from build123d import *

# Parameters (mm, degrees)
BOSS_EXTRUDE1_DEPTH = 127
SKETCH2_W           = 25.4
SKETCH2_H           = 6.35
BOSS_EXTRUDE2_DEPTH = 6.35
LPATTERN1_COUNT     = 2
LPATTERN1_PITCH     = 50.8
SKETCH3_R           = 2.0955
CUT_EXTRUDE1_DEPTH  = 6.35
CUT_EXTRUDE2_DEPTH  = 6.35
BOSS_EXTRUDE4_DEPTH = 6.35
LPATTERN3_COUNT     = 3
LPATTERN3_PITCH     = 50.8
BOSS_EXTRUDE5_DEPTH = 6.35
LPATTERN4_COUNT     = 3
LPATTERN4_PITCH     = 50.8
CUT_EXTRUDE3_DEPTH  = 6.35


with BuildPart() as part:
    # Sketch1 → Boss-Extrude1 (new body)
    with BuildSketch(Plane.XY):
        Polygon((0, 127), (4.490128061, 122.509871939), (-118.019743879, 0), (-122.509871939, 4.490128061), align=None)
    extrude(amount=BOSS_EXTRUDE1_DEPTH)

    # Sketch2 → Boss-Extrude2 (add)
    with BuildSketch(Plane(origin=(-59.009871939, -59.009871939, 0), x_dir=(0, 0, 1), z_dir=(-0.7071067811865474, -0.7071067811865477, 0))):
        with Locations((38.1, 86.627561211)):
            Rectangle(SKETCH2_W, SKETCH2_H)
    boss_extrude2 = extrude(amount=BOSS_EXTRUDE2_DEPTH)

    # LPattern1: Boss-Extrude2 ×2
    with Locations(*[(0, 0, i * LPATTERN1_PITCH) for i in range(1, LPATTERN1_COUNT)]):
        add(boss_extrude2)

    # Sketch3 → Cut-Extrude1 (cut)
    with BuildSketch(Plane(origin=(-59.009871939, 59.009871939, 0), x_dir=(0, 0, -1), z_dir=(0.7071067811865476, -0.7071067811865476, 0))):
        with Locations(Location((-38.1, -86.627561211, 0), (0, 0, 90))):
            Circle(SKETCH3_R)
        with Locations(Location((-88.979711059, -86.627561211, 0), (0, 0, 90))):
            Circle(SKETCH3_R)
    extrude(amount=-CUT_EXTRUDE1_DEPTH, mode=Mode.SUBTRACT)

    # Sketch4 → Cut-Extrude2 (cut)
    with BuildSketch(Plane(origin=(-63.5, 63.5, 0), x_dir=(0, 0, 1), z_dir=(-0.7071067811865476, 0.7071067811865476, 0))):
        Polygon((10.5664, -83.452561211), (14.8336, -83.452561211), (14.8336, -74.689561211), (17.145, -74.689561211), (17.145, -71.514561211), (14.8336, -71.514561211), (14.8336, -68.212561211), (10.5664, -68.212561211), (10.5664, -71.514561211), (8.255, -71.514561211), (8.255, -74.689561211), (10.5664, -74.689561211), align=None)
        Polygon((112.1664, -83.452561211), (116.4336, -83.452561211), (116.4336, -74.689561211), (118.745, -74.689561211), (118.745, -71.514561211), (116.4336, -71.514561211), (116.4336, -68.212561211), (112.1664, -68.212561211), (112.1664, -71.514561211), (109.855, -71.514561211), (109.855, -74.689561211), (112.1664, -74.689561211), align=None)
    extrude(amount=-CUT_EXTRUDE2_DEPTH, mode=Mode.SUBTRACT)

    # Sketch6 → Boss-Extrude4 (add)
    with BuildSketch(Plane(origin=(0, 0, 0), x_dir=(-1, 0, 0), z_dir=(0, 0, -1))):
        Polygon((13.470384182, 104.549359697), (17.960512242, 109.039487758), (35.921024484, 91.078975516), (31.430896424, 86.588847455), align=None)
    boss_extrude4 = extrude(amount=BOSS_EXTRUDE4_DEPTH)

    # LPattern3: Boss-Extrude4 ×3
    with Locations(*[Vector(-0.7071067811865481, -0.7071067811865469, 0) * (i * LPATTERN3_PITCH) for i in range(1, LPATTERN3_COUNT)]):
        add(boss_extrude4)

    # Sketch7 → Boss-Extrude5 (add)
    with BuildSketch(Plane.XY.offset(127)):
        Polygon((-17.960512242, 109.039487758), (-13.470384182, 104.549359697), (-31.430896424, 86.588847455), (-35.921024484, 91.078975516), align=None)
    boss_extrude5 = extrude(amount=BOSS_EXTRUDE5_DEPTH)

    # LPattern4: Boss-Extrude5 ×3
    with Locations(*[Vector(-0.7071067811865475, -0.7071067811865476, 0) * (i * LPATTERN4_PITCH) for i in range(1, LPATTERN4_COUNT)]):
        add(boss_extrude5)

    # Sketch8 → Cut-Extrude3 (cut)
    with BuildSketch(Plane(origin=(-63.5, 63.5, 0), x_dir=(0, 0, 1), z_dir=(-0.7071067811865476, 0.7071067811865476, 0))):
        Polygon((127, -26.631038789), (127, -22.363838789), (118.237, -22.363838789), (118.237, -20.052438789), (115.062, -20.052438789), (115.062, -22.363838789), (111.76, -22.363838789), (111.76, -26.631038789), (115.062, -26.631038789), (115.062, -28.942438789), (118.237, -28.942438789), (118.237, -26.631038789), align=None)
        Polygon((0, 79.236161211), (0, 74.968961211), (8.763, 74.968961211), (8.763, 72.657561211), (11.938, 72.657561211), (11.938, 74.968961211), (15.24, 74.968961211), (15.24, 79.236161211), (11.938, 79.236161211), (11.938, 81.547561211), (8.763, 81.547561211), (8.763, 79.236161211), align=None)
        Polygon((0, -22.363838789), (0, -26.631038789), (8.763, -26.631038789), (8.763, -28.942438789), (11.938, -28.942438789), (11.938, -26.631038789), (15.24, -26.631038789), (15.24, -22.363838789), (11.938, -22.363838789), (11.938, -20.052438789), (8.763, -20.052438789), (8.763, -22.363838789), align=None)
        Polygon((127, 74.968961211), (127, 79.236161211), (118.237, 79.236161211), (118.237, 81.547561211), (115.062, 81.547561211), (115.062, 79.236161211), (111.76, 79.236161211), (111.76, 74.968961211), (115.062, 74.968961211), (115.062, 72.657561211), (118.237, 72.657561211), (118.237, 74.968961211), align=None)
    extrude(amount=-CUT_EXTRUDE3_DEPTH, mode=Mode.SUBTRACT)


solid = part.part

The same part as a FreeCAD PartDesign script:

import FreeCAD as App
import Part
import Sketcher
from FreeCAD import Vector
Q = App.Units.Quantity


def add_polygon(sketch, points):
    """Adds a closed chain of lines whose ends are joined by coincident constraints."""
    first, n = sketch.GeometryCount, len(points)
    for a, b in zip(points, points[1:] + points[:1]):
        sketch.addGeometry(Part.LineSegment(App.Vector(*a, 0), App.Vector(*b, 0)), False)
    for i in range(n):
        sketch.addConstraint(Sketcher.Constraint("Coincident", first + i, 2, first + (i + 1) % n, 1))

doc = App.newDocument("Part")
body = doc.addObject("PartDesign::Body", "Body")

sketch1 = body.newObject("Sketcher::SketchObject", "Sketch")
sketch1.AttachmentSupport = (doc.getObject("XY_Plane"), [""])
sketch1.MapMode = "FlatFace"
add_polygon(sketch1, [(4.490128, 122.509872), (0, 127), (-122.509872, 4.490128), (-118.019744, 0)])
sketch1.addConstraint([
    Sketcher.Constraint("PointOnObject", 0, 2, -2),
    Sketcher.Constraint("PointOnObject", 2, 2, -1),
    Sketcher.Constraint("Perpendicular", 0, 1),
    Sketcher.Constraint("Perpendicular", 1, 2),
    Sketcher.Constraint("Perpendicular", 2, 3),
    Sketcher.Constraint("DistanceY", -1, 1, 0, 2, Q("5 in")),
    Sketcher.Constraint("Angle", 0, Q("135 deg")),
    Sketcher.Constraint("Distance", 0, Q("0.25 in")),
])
pad1 = body.newObject("PartDesign::Pad", "Pad")
pad1.Profile = sketch1
pad1.Length = Q("5 in")

sketch2 = body.newObject("Sketcher::SketchObject", "Sketch001")
sketch2.Placement = App.Placement(Vector(-59.009872, -59.009872, 0), App.Rotation(Vector(0, 0, 1), Vector(-0.707106781, 0.707106781, 0), Vector(-0.707106781, -0.707106781, 0), "ZXY"))
add_polygon(sketch2, [(25.4, 89.802561), (25.4, 83.452561), (50.8, 83.452561), (50.8, 89.802561)])
sketch2.addConstraint([
    Sketcher.Constraint("Vertical", 0),
    Sketcher.Constraint("Horizontal", 1),
    Sketcher.Constraint("Vertical", 2),
    Sketcher.Constraint("Horizontal", 3),
    Sketcher.Constraint("DistanceX", 1, 1, 1, 2, Q("1 in")),
    Sketcher.Constraint("DistanceX", -1, 1, 0, 2, Q("1 in")),
    Sketcher.Constraint("DistanceY", 0, 2, 0, 1, Q("0.25 in")),
    Sketcher.Constraint("DistanceY", -1, 1, 0, 2, Q("83.452561 mm")),
])
pad2 = body.newObject("PartDesign::Pad", "Pad001")
pad2.Profile = sketch2
pad2.Length = Q("0.25 in")
doc.recompute()

linearpattern = body.newObject("PartDesign::LinearPattern", "LinearPattern")
linearpattern.Originals = [pad2]
linearpattern.Direction = (doc.getObject("Z_Axis"), [""])
linearpattern.Mode = "offset"
linearpattern.Offset = Q("2 in")
linearpattern.Occurrences = 2
body.Tip = linearpattern

sketch3 = body.newObject("Sketcher::SketchObject", "Sketch002")
sketch3.Placement = App.Placement(Vector(-59.009872, 59.009872, 0), App.Rotation(Vector(0, 0, -1), Vector(0.707106781, 0.707106781, 0), Vector(0.707106781, -0.707106781, 0), "ZXY"))
sketch3.addGeometry([
    Part.Circle(Vector(-38.1, -86.627561, 0), Vector(0, 0, 1), 2.0955),
    Part.Circle(Vector(-88.979711, -86.627561, 0), Vector(0, 0, 1), 2.0955),
], False)
sketch3.addConstraint([
    Sketcher.Constraint("Equal", 0, 1),
    Sketcher.Constraint("Horizontal", 0, 3, 1, 3),
    Sketcher.Constraint("Diameter", 0, Q("0.165 in")),
    Sketcher.Constraint("DistanceX", 0, 3, -1, 1, Q("1.5 in")),
    Sketcher.Constraint("DistanceY", 0, 3, -1, 1, Q("86.627561 mm")),
    Sketcher.Constraint("DistanceX", 1, 3, -1, 1, Q("88.979711 mm")),
])
pocket1 = body.newObject("PartDesign::Pocket", "Pocket")
pocket1.Profile = sketch3
pocket1.Length = Q("0.25 in")

sketch4 = body.newObject("Sketcher::SketchObject", "Sketch003")
sketch4.Placement = App.Placement(Vector(-63.5, 63.5, 0), App.Rotation(Vector(0, 0, 1), Vector(0.707106781, 0.707106781, 0), Vector(-0.707106781, 0.707106781, 0), "ZXY"))
add_polygon(sketch4, [(10.5664, -83.452561), (14.8336, -83.452561), (14.8336, -74.689561), (17.145, -74.689561), (17.145, -71.514561), (14.8336, -71.514561), (14.8336, -68.212561), (10.5664, -68.212561), (10.5664, -71.514561), (8.255, -71.514561), (8.255, -74.689561), (10.5664, -74.689561)])
add_polygon(sketch4, [(112.1664, -83.452561), (116.4336, -83.452561), (116.4336, -74.689561), (118.745, -74.689561), (118.745, -71.514561), (116.4336, -71.514561), (116.4336, -68.212561), (112.1664, -68.212561), (112.1664, -71.514561), (109.855, -71.514561), (109.855, -74.689561), (112.1664, -74.689561)])
sketch4.addConstraint([
    Sketcher.Constraint("Horizontal", 0),
    Sketcher.Constraint("Vertical", 1),
    Sketcher.Constraint("Horizontal", 2),
    Sketcher.Constraint("Vertical", 3),
    Sketcher.Constraint("Horizontal", 4),
    Sketcher.Constraint("Vertical", 5),
    Sketcher.Constraint("Horizontal", 6),
    Sketcher.Constraint("Vertical", 7),
    Sketcher.Constraint("Horizontal", 8),
    Sketcher.Constraint("Vertical", 9),
    Sketcher.Constraint("Horizontal", 10),
    Sketcher.Constraint("Vertical", 11),
    Sketcher.Constraint("Horizontal", 12),
    Sketcher.Constraint("Vertical", 13),
    Sketcher.Constraint("Horizontal", 14),
    Sketcher.Constraint("Vertical", 15),
    Sketcher.Constraint("Horizontal", 16),
    Sketcher.Constraint("Vertical", 17),
    Sketcher.Constraint("Horizontal", 18),
    Sketcher.Constraint("Vertical", 19),
    Sketcher.Constraint("Horizontal", 20),
    Sketcher.Constraint("Vertical", 21),
    Sketcher.Constraint("Horizontal", 22),
    Sketcher.Constraint("Vertical", 23),
    Sketcher.Constraint("Horizontal", 4, 2, 7, 2),
    Sketcher.Constraint("Horizontal", 2, 2, 9, 2),
    Sketcher.Constraint("Horizontal", 11, 2, 12, 2),
    Sketcher.Constraint("Horizontal", 10, 2, 13, 2),
    Sketcher.Constraint("Horizontal", 8, 2, 15, 2),
    Sketcher.Constraint("Horizontal", 6, 2, 17, 2),
    Sketcher.Constraint("Horizontal", 16, 2, 19, 2),
    Sketcher.Constraint("Horizontal", 14, 2, 21, 2),
    Sketcher.Constraint("Vertical", 1, 2, 4, 2),
    Sketcher.Constraint("Vertical", 7, 2, 10, 2),
    Sketcher.Constraint("Vertical", 13, 2, 16, 2),
    Sketcher.Constraint("Vertical", 19, 2, 22, 2),
    Sketcher.Constraint("Equal", 4, 8),
    Sketcher.Constraint("Equal", 6, 12),
    Sketcher.Constraint("Equal", 10, 14),
    Sketcher.Constraint("Equal", 16, 20),
    Sketcher.Constraint("DistanceX", 0, 2, 12, 2, Q("4 in")),
    Sketcher.Constraint("DistanceY", 5, 1, 5, 2, Q("0.13 in")),
    Sketcher.Constraint("DistanceY", 0, 2, 5, 2, Q("0.6 in")),
    Sketcher.Constraint("DistanceX", 0, 1, 0, 2, Q("0.168 in")),
    Sketcher.Constraint("DistanceX", 2, 1, 2, 2, Q("0.091 in")),
    Sketcher.Constraint("DistanceY", 1, 1, 1, 2, Q("0.345 in")),
    Sketcher.Constraint("DistanceX", -1, 1, 0, 2, Q("0.584 in")),
    Sketcher.Constraint("DistanceY", 0, 2, -1, 1, Q("83.452561 mm")),
])
pocket2 = body.newObject("PartDesign::Pocket", "Pocket001")
pocket2.Profile = sketch4
pocket2.Length = Q("0.25 in")

sketch5 = body.newObject("Sketcher::SketchObject", "Sketch004")
sketch5.AttachmentSupport = (doc.getObject("XY_Plane"), [""])
sketch5.MapMode = "FlatFace"
add_polygon(sketch5, [(-17.960512, 109.039488), (-13.470384, 104.54936), (-31.430896, 86.588847), (-35.921024, 91.078976)])
sketch5.addConstraint([
    Sketcher.Constraint("Perpendicular", 0, 1),
    Sketcher.Constraint("Perpendicular", 1, 2),
    Sketcher.Constraint("Perpendicular", 2, 3),
    Sketcher.Constraint("Distance", 1, Q("1 in")),
    Sketcher.Constraint("Angle", 0, Q("-45 deg")),
    Sketcher.Constraint("Distance", 0, Q("0.25 in")),
    Sketcher.Constraint("DistanceY", -1, 1, 0, 2, Q("104.54936 mm")),
    Sketcher.Constraint("DistanceX", 0, 2, -1, 1, Q("13.470384 mm")),
])
pad3 = body.newObject("PartDesign::Pad", "Pad002")
pad3.Profile = sketch5
pad3.Length = Q("0.25 in")
pad3.Reversed = True
doc.recompute()

datumline = body.newObject("PartDesign::Line", "DatumLine")
datumline.Placement = App.Placement(Vector(0, 0, 0), App.Rotation(Vector(0, 0, 1), Vector(-0.707106781, -0.707106781, 0)))
linearpattern2 = body.newObject("PartDesign::LinearPattern", "LinearPattern001")
linearpattern2.Originals = [pad3]
linearpattern2.Direction = (datumline, [""])
linearpattern2.Mode = "offset"
linearpattern2.Offset = Q("2 in")
linearpattern2.Occurrences = 3
body.Tip = linearpattern2

sketch6 = body.newObject("Sketcher::SketchObject", "Sketch005")
sketch6.AttachmentSupport = (doc.getObject("XY_Plane"), [""])
sketch6.MapMode = "FlatFace"
sketch6.AttachmentOffset = App.Placement(Vector(0, 0, 5 * 25.4), App.Rotation())
add_polygon(sketch6, [(-13.470384, 104.54936), (-17.960512, 109.039488), (-35.921024, 91.078976), (-31.430896, 86.588847)])
sketch6.addConstraint([
    Sketcher.Constraint("Perpendicular", 0, 1),
    Sketcher.Constraint("Perpendicular", 1, 2),
    Sketcher.Constraint("Perpendicular", 2, 3),
    Sketcher.Constraint("Distance", 1, Q("1 in")),
    Sketcher.Constraint("Angle", 0, Q("135 deg")),
    Sketcher.Constraint("Distance", 0, Q("0.25 in")),
    Sketcher.Constraint("DistanceY", -1, 1, 3, 2, Q("104.54936 mm")),
    Sketcher.Constraint("DistanceX", 0, 2, -1, 1, Q("17.960512 mm")),
])
pad4 = body.newObject("PartDesign::Pad", "Pad003")
pad4.Profile = sketch6
pad4.Length = Q("0.25 in")
doc.recompute()

datumline2 = body.newObject("PartDesign::Line", "DatumLine001")
datumline2.Placement = App.Placement(Vector(0, 0, 0), App.Rotation(Vector(0, 0, 1), Vector(-0.707106781, -0.707106781, 0)))
linearpattern3 = body.newObject("PartDesign::LinearPattern", "LinearPattern002")
linearpattern3.Originals = [pad4]
linearpattern3.Direction = (datumline2, [""])
linearpattern3.Mode = "offset"
linearpattern3.Offset = Q("2 in")
linearpattern3.Occurrences = 3
body.Tip = linearpattern3

sketch7 = body.newObject("Sketcher::SketchObject", "Sketch006")
sketch7.Placement = App.Placement(Vector(-63.5, 63.5, 0), App.Rotation(Vector(0, 0, 1), Vector(0.707106781, 0.707106781, 0), Vector(-0.707106781, 0.707106781, 0), "ZXY"))
add_polygon(sketch7, [(127, -26.631039), (127, -22.363839), (118.237, -22.363839), (118.237, -20.052439), (115.062, -20.052439), (115.062, -22.363839), (111.76, -22.363839), (111.76, -26.631039), (115.062, -26.631039), (115.062, -28.942439), (118.237, -28.942439), (118.237, -26.631039)])
add_polygon(sketch7, [(0, 79.236161), (0, 74.968961), (8.763, 74.968961), (8.763, 72.657561), (11.938, 72.657561), (11.938, 74.968961), (15.24, 74.968961), (15.24, 79.236161), (11.938, 79.236161), (11.938, 81.547561), (8.763, 81.547561), (8.763, 79.236161)])
add_polygon(sketch7, [(0, -22.363839), (0, -26.631039), (8.763, -26.631039), (8.763, -28.942439), (11.938, -28.942439), (11.938, -26.631039), (15.24, -26.631039), (15.24, -22.363839), (11.938, -22.363839), (11.938, -20.052439), (8.763, -20.052439), (8.763, -22.363839)])
add_polygon(sketch7, [(127, 74.968961), (127, 79.236161), (118.237, 79.236161), (118.237, 81.547561), (115.062, 81.547561), (115.062, 79.236161), (111.76, 79.236161), (111.76, 74.968961), (115.062, 74.968961), (115.062, 72.657561), (118.237, 72.657561), (118.237, 74.968961)])
sketch7.addConstraint([
    Sketcher.Constraint("Vertical", 0),
    Sketcher.Constraint("Horizontal", 1),
    Sketcher.Constraint("Vertical", 2),
    Sketcher.Constraint("Horizontal", 3),
    Sketcher.Constraint("Vertical", 4),
    Sketcher.Constraint("Horizontal", 5),
    Sketcher.Constraint("Vertical", 6),
    Sketcher.Constraint("Horizontal", 7),
    Sketcher.Constraint("Vertical", 8),
    Sketcher.Constraint("Horizontal", 9),
    Sketcher.Constraint("Vertical", 10),
    Sketcher.Constraint("Horizontal", 11),
    Sketcher.Constraint("Vertical", 12),
    Sketcher.Constraint("Horizontal", 13),
    Sketcher.Constraint("Vertical", 14),
    Sketcher.Constraint("Horizontal", 15),
    Sketcher.Constraint("Vertical", 16),
    Sketcher.Constraint("Horizontal", 17),
    Sketcher.Constraint("Vertical", 18),
    Sketcher.Constraint("Horizontal", 19),
    Sketcher.Constraint("Vertical", 20),
    Sketcher.Constraint("Horizontal", 21),
    Sketcher.Constraint("Vertical", 22),
    Sketcher.Constraint("Horizontal", 23),
    Sketcher.Constraint("Vertical", 24),
    Sketcher.Constraint("Horizontal", 25),
    Sketcher.Constraint("Vertical", 26),
    Sketcher.Constraint("Horizontal", 27),
    Sketcher.Constraint("Vertical", 28),
    Sketcher.Constraint("Horizontal", 29),
    Sketcher.Constraint("Vertical", 30),
    Sketcher.Constraint("Horizontal", 31),
    Sketcher.Constraint("Vertical", 32),
    Sketcher.Constraint("Horizontal", 33),
    Sketcher.Constraint("Vertical", 34),
    Sketcher.Constraint("Horizontal", 35),
    Sketcher.Constraint("Vertical", 36),
    Sketcher.Constraint("Horizontal", 37),
    Sketcher.Constraint("Vertical", 38),
    Sketcher.Constraint("Horizontal", 39),
    Sketcher.Constraint("Vertical", 40),
    Sketcher.Constraint("Horizontal", 41),
    Sketcher.Constraint("Vertical", 42),
    Sketcher.Constraint("Horizontal", 43),
    Sketcher.Constraint("Vertical", 44),
    Sketcher.Constraint("Horizontal", 45),
    Sketcher.Constraint("Vertical", 46),
    Sketcher.Constraint("Horizontal", 47),
    Sketcher.Constraint("PointOnObject", 12, 2, -2),
    Sketcher.Constraint("PointOnObject", 24, 2, -2),
    Sketcher.Constraint("Horizontal", 1, 2, 4, 2),
    Sketcher.Constraint("Horizontal", 7, 2, 10, 2),
    Sketcher.Constraint("Horizontal", 13, 2, 16, 2),
    Sketcher.Constraint("Horizontal", 19, 2, 22, 2),
    Sketcher.Constraint("Horizontal", 11, 2, 24, 2),
    Sketcher.Constraint("Horizontal", 9, 2, 26, 2),
    Sketcher.Constraint("Horizontal", 25, 2, 28, 2),
    Sketcher.Constraint("Horizontal", 5, 2, 30, 2),
    Sketcher.Constraint("Horizontal", 3, 2, 32, 2),
    Sketcher.Constraint("Horizontal", 31, 2, 34, 2),
    Sketcher.Constraint("Horizontal", 23, 2, 36, 2),
    Sketcher.Constraint("Horizontal", 21, 2, 38, 2),
    Sketcher.Constraint("Horizontal", 37, 2, 40, 2),
    Sketcher.Constraint("Horizontal", 17, 2, 42, 2),
    Sketcher.Constraint("Horizontal", 15, 2, 44, 2),
    Sketcher.Constraint("Horizontal", 43, 2, 46, 2),
    Sketcher.Constraint("Vertical", 4, 2, 7, 2),
    Sketcher.Constraint("Vertical", 2, 2, 9, 2),
    Sketcher.Constraint("Vertical", 16, 2, 19, 2),
    Sketcher.Constraint("Vertical", 14, 2, 21, 2),
    Sketcher.Constraint("Vertical", 22, 2, 25, 2),
    Sketcher.Constraint("Vertical", 20, 2, 27, 2),
    Sketcher.Constraint("Vertical", 18, 2, 29, 2),
    Sketcher.Constraint("Vertical", 28, 2, 31, 2),
    Sketcher.Constraint("Vertical", 26, 2, 33, 2),
    Sketcher.Constraint("Vertical", 11, 2, 36, 2),
    Sketcher.Constraint("Vertical", 10, 2, 37, 2),
    Sketcher.Constraint("Vertical", 8, 2, 39, 2),
    Sketcher.Constraint("Vertical", 6, 2, 41, 2),
    Sketcher.Constraint("Vertical", 40, 2, 43, 2),
    Sketcher.Constraint("Vertical", 38, 2, 45, 2),
    Sketcher.Constraint("Equal", 11, 13),
    Sketcher.Constraint("Equal", 9, 15),
    Sketcher.Constraint("Equal", 7, 17),
    Sketcher.Constraint("Equal", 4, 8),
    Sketcher.Constraint("Equal", 6, 12),
    Sketcher.Constraint("Equal", 10, 14),
    Sketcher.Constraint("Equal", 16, 20),
    Sketcher.Constraint("DistanceX", -1, 1, 0, 2, Q("5 in")),
    Sketcher.Constraint("DistanceY", 6, 2, 12, 2, Q("4 in")),
    Sketcher.Constraint("DistanceX", 5, 2, 5, 1, Q("0.13 in")),
    Sketcher.Constraint("DistanceX", -1, 1, 5, 2, Q("4.4 in")),
    Sketcher.Constraint("DistanceX", 1, 2, 1, 1, Q("0.345 in")),
    Sketcher.Constraint("DistanceY", 0, 1, 0, 2, Q("0.168 in")),
    Sketcher.Constraint("DistanceY", 2, 1, 2, 2, Q("0.091 in")),
    Sketcher.Constraint("DistanceY", 0, 2, -1, 1, Q("22.363839 mm")),
])
pocket3 = body.newObject("PartDesign::Pocket", "Pocket002")
pocket3.Profile = sketch7
pocket3.Length = Q("0.25 in")

doc.recompute()
